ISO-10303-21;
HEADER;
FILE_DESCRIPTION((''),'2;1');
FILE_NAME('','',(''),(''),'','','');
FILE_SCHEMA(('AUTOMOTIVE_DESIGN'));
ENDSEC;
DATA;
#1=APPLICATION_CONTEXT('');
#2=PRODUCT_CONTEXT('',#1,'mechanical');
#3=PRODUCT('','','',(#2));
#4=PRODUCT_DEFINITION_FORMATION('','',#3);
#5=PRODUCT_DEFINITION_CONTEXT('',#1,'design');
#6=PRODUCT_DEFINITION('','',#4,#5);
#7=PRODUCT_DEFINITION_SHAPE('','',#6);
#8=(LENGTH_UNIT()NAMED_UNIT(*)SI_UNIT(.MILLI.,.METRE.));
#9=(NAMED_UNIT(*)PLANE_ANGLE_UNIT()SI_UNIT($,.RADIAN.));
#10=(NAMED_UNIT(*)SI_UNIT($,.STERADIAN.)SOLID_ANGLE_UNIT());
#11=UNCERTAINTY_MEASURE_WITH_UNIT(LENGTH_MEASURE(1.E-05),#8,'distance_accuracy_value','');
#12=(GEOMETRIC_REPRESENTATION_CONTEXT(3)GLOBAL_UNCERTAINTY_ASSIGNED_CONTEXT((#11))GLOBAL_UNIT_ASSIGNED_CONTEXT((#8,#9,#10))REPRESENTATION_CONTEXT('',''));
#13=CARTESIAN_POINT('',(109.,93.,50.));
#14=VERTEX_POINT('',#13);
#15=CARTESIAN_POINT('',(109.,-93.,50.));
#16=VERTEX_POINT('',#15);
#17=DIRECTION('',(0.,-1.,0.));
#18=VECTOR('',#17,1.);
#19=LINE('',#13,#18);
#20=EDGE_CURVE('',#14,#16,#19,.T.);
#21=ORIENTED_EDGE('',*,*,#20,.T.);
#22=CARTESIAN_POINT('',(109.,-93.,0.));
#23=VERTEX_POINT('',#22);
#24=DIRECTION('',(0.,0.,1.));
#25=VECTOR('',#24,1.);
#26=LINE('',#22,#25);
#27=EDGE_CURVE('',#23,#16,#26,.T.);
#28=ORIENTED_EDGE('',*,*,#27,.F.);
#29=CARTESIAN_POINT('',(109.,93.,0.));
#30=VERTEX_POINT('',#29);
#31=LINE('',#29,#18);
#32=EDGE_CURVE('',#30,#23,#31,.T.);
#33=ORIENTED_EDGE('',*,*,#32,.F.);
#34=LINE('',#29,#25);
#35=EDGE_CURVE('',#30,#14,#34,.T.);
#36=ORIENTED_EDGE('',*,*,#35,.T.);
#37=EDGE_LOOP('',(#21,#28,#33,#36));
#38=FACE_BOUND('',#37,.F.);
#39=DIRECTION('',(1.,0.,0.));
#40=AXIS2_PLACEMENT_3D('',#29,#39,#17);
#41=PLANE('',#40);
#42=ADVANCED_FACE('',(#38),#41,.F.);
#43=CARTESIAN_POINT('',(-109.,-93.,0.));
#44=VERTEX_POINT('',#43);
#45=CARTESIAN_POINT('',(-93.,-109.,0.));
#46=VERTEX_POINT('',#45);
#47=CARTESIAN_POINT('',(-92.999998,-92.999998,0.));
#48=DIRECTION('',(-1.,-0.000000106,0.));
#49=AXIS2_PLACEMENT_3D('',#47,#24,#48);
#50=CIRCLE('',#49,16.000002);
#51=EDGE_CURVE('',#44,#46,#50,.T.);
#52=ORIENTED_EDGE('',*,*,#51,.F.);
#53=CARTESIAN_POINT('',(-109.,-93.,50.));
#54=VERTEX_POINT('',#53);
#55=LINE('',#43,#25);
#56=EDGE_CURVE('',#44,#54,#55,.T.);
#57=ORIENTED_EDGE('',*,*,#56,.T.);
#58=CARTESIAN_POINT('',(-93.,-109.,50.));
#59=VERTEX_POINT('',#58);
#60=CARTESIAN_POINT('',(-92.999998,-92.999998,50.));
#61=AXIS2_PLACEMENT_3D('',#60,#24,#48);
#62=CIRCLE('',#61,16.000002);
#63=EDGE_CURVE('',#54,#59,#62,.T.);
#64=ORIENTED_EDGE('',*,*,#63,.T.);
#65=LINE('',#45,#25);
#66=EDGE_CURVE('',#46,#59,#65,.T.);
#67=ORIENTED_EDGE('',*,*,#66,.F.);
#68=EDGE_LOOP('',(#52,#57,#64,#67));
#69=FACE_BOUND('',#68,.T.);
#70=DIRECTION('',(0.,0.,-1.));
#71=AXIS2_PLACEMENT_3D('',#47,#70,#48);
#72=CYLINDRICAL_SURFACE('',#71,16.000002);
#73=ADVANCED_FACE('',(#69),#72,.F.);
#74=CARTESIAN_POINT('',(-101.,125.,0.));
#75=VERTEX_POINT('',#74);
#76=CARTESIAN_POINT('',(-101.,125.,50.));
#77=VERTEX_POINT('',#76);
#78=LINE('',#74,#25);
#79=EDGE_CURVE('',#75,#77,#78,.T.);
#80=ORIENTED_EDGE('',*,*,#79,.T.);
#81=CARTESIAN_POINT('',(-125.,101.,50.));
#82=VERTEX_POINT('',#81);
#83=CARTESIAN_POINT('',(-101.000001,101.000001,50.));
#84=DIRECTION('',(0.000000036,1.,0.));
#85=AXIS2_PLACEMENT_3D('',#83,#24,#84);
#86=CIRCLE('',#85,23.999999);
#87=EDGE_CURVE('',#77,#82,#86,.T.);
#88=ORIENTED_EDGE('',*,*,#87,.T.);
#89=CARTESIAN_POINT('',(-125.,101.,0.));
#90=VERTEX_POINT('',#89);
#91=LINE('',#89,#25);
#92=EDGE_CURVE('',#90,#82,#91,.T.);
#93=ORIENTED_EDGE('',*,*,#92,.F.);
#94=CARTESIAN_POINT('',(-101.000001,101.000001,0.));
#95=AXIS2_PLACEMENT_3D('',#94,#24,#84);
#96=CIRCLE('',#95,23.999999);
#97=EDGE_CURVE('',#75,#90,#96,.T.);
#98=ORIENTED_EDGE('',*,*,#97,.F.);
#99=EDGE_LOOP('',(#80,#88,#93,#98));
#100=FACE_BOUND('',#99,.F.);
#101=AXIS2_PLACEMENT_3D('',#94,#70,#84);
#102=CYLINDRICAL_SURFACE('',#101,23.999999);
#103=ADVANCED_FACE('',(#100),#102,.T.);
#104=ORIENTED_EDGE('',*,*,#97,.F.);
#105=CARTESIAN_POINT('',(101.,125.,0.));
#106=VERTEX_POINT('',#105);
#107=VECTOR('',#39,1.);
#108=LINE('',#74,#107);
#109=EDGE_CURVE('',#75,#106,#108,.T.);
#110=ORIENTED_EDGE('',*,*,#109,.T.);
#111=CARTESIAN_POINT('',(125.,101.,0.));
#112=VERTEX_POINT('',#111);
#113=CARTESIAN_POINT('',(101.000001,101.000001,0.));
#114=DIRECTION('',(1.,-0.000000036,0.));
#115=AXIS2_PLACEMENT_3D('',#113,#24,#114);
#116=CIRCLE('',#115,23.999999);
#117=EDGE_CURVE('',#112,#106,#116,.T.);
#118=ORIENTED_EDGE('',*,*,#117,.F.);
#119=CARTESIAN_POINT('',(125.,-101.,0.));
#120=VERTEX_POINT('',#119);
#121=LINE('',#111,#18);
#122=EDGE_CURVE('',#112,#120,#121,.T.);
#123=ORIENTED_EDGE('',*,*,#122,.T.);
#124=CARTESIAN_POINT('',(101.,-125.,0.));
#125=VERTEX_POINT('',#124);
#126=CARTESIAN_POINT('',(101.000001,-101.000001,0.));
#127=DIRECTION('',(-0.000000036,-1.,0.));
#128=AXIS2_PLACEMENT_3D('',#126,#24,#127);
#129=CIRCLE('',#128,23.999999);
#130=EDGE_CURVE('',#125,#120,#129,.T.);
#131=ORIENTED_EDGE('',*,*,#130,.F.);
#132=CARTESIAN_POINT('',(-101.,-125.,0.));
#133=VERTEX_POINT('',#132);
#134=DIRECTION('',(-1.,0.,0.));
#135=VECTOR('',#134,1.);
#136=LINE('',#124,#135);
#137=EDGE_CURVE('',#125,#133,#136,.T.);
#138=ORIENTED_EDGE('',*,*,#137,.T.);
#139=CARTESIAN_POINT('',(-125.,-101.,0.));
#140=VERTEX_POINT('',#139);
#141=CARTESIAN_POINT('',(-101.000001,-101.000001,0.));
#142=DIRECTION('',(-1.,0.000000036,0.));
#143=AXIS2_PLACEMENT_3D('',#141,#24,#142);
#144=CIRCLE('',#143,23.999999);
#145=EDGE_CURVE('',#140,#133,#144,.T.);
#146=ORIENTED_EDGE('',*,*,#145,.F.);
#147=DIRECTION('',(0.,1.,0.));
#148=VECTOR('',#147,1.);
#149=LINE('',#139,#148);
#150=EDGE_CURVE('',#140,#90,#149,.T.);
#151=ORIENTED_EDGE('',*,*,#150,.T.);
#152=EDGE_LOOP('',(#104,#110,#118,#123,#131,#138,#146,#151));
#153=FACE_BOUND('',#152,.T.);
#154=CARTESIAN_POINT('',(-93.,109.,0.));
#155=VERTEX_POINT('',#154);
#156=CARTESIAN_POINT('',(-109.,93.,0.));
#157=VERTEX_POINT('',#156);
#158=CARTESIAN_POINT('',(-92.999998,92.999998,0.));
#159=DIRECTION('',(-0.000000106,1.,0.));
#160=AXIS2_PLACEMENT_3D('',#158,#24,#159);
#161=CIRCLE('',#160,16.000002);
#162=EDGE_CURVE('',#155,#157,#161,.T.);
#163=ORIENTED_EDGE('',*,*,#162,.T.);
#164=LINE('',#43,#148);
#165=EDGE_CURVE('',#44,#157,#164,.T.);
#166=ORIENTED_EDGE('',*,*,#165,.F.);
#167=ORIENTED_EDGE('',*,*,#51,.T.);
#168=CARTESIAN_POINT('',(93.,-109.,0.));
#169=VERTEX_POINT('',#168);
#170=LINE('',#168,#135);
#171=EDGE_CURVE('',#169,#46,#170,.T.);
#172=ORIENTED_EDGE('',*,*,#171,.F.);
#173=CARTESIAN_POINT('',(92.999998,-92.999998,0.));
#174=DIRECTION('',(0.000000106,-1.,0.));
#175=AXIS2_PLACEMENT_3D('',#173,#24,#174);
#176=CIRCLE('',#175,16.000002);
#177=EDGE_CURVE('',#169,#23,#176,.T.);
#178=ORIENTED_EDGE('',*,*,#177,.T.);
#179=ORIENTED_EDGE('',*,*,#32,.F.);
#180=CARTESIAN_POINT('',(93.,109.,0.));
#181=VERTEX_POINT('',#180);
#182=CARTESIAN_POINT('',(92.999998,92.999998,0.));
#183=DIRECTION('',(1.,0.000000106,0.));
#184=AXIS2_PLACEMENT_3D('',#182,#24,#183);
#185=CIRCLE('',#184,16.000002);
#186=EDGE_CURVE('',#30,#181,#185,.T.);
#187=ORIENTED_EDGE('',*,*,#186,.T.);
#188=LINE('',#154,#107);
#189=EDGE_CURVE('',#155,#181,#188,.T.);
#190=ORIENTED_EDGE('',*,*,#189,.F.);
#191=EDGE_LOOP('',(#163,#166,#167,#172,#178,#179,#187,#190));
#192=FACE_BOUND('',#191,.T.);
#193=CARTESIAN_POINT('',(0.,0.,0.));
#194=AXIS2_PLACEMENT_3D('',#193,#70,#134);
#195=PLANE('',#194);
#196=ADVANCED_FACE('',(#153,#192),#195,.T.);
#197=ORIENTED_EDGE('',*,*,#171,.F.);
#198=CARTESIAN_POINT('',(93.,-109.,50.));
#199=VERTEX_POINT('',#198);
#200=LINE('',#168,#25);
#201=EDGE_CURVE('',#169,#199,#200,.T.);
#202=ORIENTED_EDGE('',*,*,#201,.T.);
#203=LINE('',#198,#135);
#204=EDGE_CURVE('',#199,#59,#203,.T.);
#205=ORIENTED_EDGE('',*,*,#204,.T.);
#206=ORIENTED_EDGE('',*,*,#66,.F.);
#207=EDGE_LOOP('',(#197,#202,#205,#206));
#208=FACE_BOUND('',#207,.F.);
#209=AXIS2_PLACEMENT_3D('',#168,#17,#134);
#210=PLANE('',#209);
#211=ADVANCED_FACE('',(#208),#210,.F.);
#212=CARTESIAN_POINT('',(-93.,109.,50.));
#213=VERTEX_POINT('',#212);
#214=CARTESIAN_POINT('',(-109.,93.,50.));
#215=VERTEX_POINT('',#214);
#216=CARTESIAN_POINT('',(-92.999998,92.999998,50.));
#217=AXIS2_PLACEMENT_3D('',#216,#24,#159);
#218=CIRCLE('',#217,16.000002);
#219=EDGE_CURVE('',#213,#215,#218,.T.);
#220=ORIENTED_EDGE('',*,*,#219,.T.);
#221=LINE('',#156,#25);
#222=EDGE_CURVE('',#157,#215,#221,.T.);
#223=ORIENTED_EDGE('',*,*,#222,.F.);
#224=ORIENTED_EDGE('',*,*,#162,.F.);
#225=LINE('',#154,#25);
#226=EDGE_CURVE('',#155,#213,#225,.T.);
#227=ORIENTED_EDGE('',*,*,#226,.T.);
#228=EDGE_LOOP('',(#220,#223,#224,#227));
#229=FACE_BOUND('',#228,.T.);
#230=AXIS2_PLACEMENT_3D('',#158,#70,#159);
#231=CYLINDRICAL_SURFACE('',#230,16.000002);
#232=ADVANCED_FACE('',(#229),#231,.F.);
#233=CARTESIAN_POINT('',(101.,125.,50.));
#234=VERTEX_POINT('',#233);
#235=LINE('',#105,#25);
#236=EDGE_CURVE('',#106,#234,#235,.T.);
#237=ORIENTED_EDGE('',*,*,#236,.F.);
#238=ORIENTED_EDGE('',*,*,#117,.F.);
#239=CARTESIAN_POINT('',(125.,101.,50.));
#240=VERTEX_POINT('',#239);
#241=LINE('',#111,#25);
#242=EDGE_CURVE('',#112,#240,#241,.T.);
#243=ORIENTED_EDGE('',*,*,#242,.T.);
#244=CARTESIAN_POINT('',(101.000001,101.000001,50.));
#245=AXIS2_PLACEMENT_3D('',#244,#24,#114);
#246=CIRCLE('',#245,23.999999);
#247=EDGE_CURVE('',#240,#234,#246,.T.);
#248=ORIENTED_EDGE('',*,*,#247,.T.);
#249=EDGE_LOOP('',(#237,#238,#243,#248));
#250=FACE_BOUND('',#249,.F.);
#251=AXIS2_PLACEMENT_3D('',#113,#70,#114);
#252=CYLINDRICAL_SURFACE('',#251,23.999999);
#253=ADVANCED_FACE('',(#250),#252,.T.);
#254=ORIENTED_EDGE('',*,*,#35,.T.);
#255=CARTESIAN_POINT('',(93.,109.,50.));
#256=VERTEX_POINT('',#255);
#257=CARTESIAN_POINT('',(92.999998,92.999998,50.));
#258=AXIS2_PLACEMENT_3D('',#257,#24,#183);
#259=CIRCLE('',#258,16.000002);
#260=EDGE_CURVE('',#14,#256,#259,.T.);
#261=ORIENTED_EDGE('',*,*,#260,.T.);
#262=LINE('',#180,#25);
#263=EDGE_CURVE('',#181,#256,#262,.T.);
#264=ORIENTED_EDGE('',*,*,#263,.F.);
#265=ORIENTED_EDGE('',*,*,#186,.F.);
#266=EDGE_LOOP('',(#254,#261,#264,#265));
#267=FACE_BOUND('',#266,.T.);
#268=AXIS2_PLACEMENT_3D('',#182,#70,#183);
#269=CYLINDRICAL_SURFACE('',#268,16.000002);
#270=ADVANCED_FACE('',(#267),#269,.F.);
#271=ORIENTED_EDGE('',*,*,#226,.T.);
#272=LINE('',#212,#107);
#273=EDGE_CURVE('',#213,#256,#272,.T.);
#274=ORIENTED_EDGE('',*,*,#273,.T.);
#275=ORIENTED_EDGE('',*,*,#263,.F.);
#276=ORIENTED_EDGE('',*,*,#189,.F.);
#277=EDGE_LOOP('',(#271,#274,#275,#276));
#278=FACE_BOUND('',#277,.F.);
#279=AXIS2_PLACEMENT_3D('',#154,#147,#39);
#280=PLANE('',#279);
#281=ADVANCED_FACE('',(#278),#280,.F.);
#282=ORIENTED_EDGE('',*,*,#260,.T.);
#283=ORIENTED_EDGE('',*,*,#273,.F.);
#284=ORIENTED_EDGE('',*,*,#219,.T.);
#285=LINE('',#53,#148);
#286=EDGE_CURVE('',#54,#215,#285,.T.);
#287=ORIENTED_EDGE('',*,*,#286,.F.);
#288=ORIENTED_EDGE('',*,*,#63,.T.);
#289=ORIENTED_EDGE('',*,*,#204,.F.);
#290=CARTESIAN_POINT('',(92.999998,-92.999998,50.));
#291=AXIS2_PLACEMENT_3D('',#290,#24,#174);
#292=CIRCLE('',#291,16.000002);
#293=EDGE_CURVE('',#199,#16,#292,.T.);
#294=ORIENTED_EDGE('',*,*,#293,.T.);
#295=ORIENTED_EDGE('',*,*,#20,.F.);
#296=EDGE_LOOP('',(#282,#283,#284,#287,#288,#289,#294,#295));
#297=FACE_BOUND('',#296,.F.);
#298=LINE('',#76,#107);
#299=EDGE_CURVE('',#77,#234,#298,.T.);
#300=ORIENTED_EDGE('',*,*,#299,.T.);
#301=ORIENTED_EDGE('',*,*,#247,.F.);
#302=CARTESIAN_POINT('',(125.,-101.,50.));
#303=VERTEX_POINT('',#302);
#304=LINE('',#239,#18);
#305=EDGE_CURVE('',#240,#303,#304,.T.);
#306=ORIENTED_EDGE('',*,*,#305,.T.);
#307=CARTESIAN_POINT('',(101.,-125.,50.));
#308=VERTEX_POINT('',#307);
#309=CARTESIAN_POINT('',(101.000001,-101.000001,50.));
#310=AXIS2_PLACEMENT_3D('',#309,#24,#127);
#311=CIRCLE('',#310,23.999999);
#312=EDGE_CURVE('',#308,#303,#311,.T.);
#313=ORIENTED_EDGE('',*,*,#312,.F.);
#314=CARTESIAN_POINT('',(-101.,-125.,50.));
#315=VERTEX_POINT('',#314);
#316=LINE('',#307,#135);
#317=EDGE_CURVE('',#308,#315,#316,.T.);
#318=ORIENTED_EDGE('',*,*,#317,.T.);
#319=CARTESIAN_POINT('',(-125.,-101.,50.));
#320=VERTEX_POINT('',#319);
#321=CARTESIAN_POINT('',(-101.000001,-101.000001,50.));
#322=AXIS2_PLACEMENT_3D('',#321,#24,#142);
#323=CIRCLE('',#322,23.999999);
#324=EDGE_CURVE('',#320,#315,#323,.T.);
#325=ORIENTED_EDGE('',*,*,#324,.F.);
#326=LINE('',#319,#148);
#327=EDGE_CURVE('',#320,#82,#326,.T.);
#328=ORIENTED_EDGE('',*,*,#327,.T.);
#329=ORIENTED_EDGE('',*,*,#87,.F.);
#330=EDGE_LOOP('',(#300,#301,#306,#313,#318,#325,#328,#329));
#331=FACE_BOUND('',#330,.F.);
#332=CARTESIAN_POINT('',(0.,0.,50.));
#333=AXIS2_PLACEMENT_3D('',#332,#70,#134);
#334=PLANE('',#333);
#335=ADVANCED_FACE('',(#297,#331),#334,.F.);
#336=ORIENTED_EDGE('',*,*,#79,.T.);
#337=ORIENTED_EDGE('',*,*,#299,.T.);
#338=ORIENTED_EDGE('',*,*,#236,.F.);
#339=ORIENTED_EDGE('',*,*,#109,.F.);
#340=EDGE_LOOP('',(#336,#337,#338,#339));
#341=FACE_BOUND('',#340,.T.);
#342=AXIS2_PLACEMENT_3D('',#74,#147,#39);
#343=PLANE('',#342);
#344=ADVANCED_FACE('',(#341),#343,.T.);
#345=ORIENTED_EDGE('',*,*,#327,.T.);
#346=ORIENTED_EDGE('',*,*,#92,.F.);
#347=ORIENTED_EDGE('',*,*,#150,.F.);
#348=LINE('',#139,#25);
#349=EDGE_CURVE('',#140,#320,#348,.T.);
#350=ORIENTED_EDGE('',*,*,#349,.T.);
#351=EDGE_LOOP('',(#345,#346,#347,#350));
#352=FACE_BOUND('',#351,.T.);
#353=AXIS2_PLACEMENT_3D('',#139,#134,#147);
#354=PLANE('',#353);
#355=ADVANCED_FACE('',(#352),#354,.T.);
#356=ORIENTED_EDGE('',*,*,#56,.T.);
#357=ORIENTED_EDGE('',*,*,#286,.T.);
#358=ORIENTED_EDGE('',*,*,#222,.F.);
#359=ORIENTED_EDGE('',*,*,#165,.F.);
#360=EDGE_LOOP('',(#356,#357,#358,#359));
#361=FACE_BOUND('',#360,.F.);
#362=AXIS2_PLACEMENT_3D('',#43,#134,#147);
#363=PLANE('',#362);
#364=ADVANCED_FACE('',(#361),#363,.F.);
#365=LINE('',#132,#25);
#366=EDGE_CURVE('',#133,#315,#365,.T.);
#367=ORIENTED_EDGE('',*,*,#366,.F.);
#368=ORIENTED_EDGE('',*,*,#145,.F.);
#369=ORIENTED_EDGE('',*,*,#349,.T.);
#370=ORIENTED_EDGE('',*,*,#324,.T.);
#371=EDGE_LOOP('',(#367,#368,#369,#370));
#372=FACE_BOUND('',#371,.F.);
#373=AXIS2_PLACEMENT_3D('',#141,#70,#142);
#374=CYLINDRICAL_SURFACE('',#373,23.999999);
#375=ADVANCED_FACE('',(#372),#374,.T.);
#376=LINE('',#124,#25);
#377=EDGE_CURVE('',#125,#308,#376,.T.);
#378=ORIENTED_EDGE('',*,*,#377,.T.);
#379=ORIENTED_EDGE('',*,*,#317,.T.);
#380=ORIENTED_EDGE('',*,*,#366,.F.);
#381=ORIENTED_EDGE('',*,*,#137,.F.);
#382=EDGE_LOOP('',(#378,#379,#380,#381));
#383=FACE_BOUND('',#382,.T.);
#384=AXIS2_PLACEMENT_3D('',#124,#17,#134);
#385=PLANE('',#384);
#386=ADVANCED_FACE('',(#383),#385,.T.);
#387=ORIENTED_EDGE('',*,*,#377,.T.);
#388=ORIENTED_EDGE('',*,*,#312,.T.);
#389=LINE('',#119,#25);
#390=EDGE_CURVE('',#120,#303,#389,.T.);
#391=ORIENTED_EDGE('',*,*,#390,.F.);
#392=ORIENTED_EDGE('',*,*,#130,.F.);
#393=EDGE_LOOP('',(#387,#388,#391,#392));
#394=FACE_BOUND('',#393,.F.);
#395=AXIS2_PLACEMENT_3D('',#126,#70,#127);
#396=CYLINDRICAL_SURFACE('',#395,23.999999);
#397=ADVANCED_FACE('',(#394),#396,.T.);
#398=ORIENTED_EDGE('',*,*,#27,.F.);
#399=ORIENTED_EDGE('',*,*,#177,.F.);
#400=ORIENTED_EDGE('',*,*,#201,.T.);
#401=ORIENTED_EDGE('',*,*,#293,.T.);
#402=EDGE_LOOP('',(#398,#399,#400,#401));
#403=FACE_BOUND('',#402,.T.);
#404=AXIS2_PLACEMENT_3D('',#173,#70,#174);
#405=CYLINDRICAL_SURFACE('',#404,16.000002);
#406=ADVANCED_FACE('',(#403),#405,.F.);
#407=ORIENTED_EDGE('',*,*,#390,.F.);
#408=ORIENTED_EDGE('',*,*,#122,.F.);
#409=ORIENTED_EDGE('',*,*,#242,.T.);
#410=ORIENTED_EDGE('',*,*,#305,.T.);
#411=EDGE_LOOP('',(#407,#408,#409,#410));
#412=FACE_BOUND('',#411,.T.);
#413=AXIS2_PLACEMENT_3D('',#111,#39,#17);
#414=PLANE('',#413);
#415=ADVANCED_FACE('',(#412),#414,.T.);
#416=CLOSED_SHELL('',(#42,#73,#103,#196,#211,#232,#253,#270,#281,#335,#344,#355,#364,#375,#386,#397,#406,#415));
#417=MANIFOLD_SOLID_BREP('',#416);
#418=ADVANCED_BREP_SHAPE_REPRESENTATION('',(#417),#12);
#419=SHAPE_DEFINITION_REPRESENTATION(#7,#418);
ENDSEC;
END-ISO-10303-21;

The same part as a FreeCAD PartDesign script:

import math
import FreeCAD as App
import Part
import Sketcher

V = App.Vector

doc = App.newDocument("Part")
body = doc.addObject("PartDesign::Body", "Body")

sketch1 = doc.addObject("Sketcher::SketchObject", "Sketch")
body.addObject(sketch1)
sketch1.AttachmentSupport = (doc.XY_Plane, [""])
sketch1.MapMode = "FlatFace"
sketch1.addGeometry([
    Part.LineSegment(V(101, 125, 0), V(-101, 125, 0)),
    Part.ArcOfCircle(Part.Circle(V(-101, 101, 0), V(0, 0, 1), 24), math.radians(90), math.radians(180)),
    Part.LineSegment(V(-125, 101, 0), V(-125, -101, 0)),
    Part.ArcOfCircle(Part.Circle(V(-101, -101, 0), V(0, 0, 1), 24), math.radians(180), math.radians(270)),
    Part.LineSegment(V(-101, -125, 0), V(101, -125, 0)),
    Part.ArcOfCircle(Part.Circle(V(101, -101, 0), V(0, 0, 1), 24), math.radians(-90), math.radians(0)),
    Part.LineSegment(V(125, -101, 0), V(125, 101, 0)),
    Part.ArcOfCircle(Part.Circle(V(101, 101, 0), V(0, 0, 1), 24), math.radians(0), math.radians(90)),
    Part.LineSegment(V(-93, 109, 0), V(93, 109, 0)),
    Part.ArcOfCircle(Part.Circle(V(93, 93, 0), V(0, 0, 1), 16), math.radians(0), math.radians(90)),
    Part.LineSegment(V(109, 93, 0), V(109, -93, 0)),
    Part.ArcOfCircle(Part.Circle(V(93, -93, 0), V(0, 0, 1), 16), math.radians(-90), math.radians(0)),
    Part.LineSegment(V(93, -109, 0), V(-93, -109, 0)),
    Part.ArcOfCircle(Part.Circle(V(-93, -93, 0), V(0, 0, 1), 16), math.radians(-180), math.radians(-90)),
    Part.LineSegment(V(-109, -93, 0), V(-109, 93, 0)),
    Part.ArcOfCircle(Part.Circle(V(-93, 93, 0), V(0, 0, 1), 16), math.radians(90), math.radians(180)),
], False)
sketch1.addConstraint([
    Sketcher.Constraint("Tangent", 0, 2, 1, 1),
    Sketcher.Constraint("Tangent", 1, 2, 2, 1),
    Sketcher.Constraint("Tangent", 2, 2, 3, 1),
    Sketcher.Constraint("Tangent", 3, 2, 4, 1),
    Sketcher.Constraint("Tangent", 4, 2, 5, 1),
    Sketcher.Constraint("Tangent", 5, 2, 6, 1),
    Sketcher.Constraint("Tangent", 6, 2, 7, 1),
    Sketcher.Constraint("Tangent", 7, 2, 0, 1),
    Sketcher.Constraint("Tangent", 8, 2, 9, 2),
    Sketcher.Constraint("Tangent", 9, 1, 10, 1),
    Sketcher.Constraint("Tangent", 10, 2, 11, 2),
    Sketcher.Constraint("Tangent", 11, 1, 12, 1),
    Sketcher.Constraint("Tangent", 12, 2, 13, 2),
    Sketcher.Constraint("Tangent", 13, 1, 14, 1),
    Sketcher.Constraint("Tangent", 14, 2, 15, 2),
    Sketcher.Constraint("Tangent", 15, 1, 8, 1),
    Sketcher.Constraint("Horizontal", 0),
    Sketcher.Constraint("Vertical", 2),
    Sketcher.Constraint("Horizontal", 4),
    Sketcher.Constraint("Vertical", 6),
    Sketcher.Constraint("Horizontal", 8),
    Sketcher.Constraint("Vertical", 10),
    Sketcher.Constraint("Horizontal", 12),
    Sketcher.Constraint("Vertical", 14),
    Sketcher.Constraint("Equal", 1, 3),
    Sketcher.Constraint("Equal", 3, 5),
    Sketcher.Constraint("Equal", 5, 7),
    Sketcher.Constraint("Equal", 9, 11),
    Sketcher.Constraint("Equal", 11, 13),
    Sketcher.Constraint("Equal", 13, 15),
    Sketcher.Constraint("Symmetric", 1, 3, 5, 3, -1, 1),
    Sketcher.Constraint("Symmetric", 9, 3, 13, 3, -1, 1),
    Sketcher.Constraint("Equal", 4, 2),
    Sketcher.Constraint("Equal", 12, 10),
    Sketcher.Constraint("Radius", 1, 23.999999),
    Sketcher.Constraint("Radius", 9, 16.000002),
    Sketcher.Constraint("DistanceX", 0, 2, 0, 1, 202.0),
    Sketcher.Constraint("DistanceX", 8, 1, 8, 2, 186.0),
])
pad1 = doc.addObject("PartDesign::Pad", "Pad")
body.addObject(pad1)
pad1.Profile = sketch1
pad1.Length = 50

doc.recompute()
